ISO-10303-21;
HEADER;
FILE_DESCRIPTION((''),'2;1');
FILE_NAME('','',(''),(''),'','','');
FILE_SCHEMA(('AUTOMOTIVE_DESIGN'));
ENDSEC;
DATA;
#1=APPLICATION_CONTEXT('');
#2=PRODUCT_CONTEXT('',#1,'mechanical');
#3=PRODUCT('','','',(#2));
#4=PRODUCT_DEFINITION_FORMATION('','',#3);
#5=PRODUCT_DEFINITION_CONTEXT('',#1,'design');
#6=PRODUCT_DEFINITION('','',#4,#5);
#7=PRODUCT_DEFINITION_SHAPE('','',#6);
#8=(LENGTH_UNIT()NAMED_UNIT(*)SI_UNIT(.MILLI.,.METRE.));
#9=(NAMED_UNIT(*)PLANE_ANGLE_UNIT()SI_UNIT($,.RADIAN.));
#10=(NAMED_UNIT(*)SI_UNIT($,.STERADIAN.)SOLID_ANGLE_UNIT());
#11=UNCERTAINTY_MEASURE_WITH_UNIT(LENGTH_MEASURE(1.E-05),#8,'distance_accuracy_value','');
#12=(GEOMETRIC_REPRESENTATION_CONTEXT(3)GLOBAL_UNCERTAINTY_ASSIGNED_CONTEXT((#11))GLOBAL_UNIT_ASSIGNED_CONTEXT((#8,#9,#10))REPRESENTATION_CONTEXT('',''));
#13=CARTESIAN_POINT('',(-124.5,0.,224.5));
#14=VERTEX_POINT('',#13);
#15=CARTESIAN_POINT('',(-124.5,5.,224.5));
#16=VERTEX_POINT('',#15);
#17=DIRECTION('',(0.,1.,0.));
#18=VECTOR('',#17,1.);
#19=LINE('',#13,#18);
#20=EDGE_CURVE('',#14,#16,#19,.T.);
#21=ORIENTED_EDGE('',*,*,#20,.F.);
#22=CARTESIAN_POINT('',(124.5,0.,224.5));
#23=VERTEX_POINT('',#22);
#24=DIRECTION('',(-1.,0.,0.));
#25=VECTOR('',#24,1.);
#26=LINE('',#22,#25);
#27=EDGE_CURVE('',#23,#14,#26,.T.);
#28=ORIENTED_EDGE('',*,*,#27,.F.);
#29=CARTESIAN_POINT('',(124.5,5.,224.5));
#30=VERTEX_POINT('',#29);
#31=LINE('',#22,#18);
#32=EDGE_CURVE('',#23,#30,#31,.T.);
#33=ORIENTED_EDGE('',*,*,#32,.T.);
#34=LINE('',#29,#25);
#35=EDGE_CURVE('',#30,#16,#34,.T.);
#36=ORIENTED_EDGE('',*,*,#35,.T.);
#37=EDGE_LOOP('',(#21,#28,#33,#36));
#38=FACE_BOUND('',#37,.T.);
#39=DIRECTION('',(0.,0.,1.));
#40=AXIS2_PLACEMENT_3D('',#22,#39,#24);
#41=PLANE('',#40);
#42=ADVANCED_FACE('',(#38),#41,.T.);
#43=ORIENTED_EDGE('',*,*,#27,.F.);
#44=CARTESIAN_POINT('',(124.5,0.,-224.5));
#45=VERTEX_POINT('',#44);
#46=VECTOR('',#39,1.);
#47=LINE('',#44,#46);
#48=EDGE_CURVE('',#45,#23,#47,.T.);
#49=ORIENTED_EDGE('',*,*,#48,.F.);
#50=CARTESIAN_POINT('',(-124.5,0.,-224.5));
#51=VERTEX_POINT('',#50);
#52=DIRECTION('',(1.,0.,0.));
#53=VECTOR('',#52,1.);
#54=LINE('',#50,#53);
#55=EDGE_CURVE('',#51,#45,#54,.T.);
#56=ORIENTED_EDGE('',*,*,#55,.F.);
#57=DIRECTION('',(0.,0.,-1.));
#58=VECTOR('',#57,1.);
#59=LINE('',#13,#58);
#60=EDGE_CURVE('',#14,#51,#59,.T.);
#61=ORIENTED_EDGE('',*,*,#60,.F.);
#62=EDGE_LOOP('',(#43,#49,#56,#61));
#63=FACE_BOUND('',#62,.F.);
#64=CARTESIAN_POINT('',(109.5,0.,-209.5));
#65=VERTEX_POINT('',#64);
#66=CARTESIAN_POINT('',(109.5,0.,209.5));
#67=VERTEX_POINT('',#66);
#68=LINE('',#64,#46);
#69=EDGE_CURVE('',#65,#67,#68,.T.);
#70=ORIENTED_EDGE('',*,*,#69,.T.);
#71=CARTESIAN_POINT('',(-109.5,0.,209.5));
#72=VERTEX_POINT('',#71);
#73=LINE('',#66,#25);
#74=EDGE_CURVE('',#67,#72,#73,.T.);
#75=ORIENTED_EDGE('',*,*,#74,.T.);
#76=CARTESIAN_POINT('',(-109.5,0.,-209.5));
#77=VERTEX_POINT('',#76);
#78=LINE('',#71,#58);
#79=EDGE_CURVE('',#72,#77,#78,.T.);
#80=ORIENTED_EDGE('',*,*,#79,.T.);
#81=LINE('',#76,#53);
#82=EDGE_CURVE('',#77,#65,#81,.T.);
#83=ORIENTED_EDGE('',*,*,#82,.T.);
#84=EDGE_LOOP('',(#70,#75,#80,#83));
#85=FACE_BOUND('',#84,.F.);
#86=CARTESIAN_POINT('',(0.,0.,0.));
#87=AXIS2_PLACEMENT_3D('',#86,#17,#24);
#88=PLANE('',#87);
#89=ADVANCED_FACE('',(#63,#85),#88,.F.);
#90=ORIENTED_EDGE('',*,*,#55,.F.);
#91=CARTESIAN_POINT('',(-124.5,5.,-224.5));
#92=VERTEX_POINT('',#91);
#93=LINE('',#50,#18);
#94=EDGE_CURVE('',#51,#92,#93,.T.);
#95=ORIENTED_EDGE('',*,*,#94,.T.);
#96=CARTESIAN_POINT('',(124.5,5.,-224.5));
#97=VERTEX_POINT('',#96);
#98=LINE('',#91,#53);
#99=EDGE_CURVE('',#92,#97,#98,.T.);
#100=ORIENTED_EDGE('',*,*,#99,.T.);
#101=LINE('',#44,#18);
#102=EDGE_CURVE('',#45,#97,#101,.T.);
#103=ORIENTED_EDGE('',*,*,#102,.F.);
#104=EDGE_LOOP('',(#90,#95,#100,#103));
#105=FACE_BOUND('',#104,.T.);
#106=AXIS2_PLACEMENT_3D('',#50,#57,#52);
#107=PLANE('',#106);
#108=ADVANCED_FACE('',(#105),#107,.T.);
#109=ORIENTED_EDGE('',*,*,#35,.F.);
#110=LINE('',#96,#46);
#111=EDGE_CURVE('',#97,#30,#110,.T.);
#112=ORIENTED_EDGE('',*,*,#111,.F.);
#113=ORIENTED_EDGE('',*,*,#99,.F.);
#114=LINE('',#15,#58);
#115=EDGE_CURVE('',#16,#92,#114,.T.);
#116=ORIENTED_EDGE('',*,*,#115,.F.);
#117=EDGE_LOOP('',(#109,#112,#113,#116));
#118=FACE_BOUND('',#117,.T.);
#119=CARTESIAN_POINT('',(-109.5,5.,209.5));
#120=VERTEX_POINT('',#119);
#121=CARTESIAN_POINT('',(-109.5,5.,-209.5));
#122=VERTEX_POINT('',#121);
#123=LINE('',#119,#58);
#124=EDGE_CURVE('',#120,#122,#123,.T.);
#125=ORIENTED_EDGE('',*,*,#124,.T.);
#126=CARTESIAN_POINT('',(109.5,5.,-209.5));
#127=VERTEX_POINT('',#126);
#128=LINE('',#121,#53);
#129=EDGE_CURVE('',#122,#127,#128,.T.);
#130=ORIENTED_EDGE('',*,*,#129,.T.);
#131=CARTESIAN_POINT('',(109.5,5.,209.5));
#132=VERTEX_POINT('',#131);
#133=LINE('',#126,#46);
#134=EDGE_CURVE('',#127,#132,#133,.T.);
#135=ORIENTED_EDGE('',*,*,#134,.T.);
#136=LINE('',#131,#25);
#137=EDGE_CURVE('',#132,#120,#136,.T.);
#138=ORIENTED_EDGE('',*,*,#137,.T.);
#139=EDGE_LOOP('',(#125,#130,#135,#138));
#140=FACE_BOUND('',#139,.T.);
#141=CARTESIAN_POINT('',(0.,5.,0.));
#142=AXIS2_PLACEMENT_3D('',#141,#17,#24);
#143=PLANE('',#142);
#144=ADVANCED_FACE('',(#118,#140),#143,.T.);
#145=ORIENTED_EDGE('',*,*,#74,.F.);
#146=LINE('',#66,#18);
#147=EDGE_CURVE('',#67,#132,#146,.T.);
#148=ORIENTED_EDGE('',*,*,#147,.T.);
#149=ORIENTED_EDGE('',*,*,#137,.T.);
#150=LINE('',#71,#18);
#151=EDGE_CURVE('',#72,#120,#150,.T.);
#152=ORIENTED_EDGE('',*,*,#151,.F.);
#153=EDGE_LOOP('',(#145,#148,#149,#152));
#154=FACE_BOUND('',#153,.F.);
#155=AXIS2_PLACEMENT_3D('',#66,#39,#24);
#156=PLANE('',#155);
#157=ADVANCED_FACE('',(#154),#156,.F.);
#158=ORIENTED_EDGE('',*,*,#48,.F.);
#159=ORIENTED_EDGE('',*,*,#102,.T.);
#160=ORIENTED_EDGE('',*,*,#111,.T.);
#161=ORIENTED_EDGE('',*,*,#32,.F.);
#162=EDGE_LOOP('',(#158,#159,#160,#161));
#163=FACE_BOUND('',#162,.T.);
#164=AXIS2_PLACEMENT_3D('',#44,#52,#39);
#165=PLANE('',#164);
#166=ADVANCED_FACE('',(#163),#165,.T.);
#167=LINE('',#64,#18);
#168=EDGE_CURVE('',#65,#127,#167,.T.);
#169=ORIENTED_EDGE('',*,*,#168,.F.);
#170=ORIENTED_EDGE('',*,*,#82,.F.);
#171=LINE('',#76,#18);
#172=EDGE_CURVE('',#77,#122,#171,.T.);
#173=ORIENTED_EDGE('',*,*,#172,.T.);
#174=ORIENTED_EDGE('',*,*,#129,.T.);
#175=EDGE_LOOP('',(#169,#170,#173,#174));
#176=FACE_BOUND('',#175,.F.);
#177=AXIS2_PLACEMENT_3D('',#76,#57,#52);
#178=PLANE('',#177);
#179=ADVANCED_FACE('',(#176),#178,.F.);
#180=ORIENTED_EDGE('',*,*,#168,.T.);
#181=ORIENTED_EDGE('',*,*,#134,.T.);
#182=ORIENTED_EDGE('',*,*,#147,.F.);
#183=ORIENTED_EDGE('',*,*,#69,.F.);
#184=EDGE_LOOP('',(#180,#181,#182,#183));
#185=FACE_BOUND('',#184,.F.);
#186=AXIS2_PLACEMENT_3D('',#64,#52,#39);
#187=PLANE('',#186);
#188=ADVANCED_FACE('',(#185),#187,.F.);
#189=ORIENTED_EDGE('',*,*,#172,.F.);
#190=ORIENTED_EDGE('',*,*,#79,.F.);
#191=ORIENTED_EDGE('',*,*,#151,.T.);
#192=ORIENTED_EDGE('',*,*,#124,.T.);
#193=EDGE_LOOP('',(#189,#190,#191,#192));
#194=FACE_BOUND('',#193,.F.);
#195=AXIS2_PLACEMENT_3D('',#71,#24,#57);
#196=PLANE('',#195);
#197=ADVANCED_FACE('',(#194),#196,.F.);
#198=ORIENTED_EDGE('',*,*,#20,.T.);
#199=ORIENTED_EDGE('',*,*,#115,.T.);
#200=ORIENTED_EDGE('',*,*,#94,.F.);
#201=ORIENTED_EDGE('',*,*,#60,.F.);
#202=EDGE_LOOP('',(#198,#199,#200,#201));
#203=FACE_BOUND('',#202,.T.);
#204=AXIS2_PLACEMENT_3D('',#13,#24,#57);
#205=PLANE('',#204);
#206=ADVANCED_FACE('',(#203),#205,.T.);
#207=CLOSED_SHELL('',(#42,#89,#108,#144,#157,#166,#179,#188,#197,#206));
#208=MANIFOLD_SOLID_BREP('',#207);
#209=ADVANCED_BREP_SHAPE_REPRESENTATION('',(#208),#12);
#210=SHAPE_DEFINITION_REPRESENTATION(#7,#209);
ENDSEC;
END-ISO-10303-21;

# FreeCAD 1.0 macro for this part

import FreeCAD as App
import Part
import Sketcher
from FreeCAD import Vector
Q = App.Units.Quantity

doc = App.newDocument("Part")
params = doc.addObject("Spreadsheet::Sheet", "Params")
for row, (alias, value) in enumerate([
    ("sketch1_width", "249 mm"),
    ("sketch1_width2", "219 mm"),
    ("sketch1_height", "449 mm"),
    ("sketch1_height2", "419 mm"),
    ("pad1_length", "5 mm"),
], start=1):
    params.set(f"A{row}", alias)
    params.set(f"B{row}", "=" + value)
    params.setAlias(f"B{row}", alias)

body = doc.addObject("PartDesign::Body", "Body")

# Sketch on XZ plane
sketch1 = doc.addObject("Sketcher::SketchObject", "Sketch")
body.addObject(sketch1)
sketch1.AttachmentSupport = (doc.XZ_Plane, [""])
sketch1.MapMode = "FlatFace"
sketch1.addGeometry([
    Part.LineSegment(Vector(124, -224, 0), Vector(-124, -224, 0)),  # 0
    Part.LineSegment(Vector(-124, -224, 0), Vector(-124, 224, 0)),  # 1
    Part.LineSegment(Vector(-124, 224, 0), Vector(124, 224, 0)),  # 2
    Part.LineSegment(Vector(124, 224, 0), Vector(124, -224, 0)),  # 3
    Part.LineSegment(Vector(110, -210, 0), Vector(110, 210, 0)),  # 4
    Part.LineSegment(Vector(110, 210, 0), Vector(-110, 210, 0)),  # 5
    Part.LineSegment(Vector(-110, 210, 0), Vector(-110, -210, 0)),  # 6
    Part.LineSegment(Vector(-110, -210, 0), Vector(110, -210, 0)),  # 7
], False)
sketch1.addConstraint([
    Sketcher.Constraint("Coincident", 0, 2, 1, 1),
    Sketcher.Constraint("Coincident", 1, 2, 2, 1),
    Sketcher.Constraint("Coincident", 2, 2, 3, 1),
    Sketcher.Constraint("Coincident", 3, 2, 0, 1),
    Sketcher.Constraint("Coincident", 4, 2, 5, 1),
    Sketcher.Constraint("Coincident", 5, 2, 6, 1),
    Sketcher.Constraint("Coincident", 6, 2, 7, 1),
    Sketcher.Constraint("Coincident", 7, 2, 4, 1),
    Sketcher.Constraint("Horizontal", 0),
    Sketcher.Constraint("Vertical", 1),
    Sketcher.Constraint("Horizontal", 2),
    Sketcher.Constraint("Vertical", 3),
    Sketcher.Constraint("Vertical", 4),
    Sketcher.Constraint("Horizontal", 5),
    Sketcher.Constraint("Vertical", 6),
    Sketcher.Constraint("Horizontal", 7),
    Sketcher.Constraint("Symmetric", 0, 2, 2, 2, -1, 1),
    Sketcher.Constraint("Symmetric", 4, 2, 6, 2, -1, 1),
    Sketcher.Constraint("DistanceX", 0, 2, 0, 1, Q("249 mm")),
    Sketcher.Constraint("DistanceX", 5, 2, 5, 1, Q("219 mm")),
    Sketcher.Constraint("DistanceY", 1, 1, 1, 2, Q("449 mm")),
    Sketcher.Constraint("DistanceY", 4, 1, 4, 2, Q("419 mm")),
])
sketch1.setExpression("Constraints[18]", "Params.sketch1_width")
sketch1.setExpression("Constraints[19]", "Params.sketch1_width2")
sketch1.setExpression("Constraints[20]", "Params.sketch1_height")
sketch1.setExpression("Constraints[21]", "Params.sketch1_height2")
pad1 = doc.addObject("PartDesign::Pad", "Pad")
body.addObject(pad1)
pad1.Profile = sketch1
pad1.setExpression("Length", "Params.pad1_length")
pad1.Reversed = True

doc.recompute()
